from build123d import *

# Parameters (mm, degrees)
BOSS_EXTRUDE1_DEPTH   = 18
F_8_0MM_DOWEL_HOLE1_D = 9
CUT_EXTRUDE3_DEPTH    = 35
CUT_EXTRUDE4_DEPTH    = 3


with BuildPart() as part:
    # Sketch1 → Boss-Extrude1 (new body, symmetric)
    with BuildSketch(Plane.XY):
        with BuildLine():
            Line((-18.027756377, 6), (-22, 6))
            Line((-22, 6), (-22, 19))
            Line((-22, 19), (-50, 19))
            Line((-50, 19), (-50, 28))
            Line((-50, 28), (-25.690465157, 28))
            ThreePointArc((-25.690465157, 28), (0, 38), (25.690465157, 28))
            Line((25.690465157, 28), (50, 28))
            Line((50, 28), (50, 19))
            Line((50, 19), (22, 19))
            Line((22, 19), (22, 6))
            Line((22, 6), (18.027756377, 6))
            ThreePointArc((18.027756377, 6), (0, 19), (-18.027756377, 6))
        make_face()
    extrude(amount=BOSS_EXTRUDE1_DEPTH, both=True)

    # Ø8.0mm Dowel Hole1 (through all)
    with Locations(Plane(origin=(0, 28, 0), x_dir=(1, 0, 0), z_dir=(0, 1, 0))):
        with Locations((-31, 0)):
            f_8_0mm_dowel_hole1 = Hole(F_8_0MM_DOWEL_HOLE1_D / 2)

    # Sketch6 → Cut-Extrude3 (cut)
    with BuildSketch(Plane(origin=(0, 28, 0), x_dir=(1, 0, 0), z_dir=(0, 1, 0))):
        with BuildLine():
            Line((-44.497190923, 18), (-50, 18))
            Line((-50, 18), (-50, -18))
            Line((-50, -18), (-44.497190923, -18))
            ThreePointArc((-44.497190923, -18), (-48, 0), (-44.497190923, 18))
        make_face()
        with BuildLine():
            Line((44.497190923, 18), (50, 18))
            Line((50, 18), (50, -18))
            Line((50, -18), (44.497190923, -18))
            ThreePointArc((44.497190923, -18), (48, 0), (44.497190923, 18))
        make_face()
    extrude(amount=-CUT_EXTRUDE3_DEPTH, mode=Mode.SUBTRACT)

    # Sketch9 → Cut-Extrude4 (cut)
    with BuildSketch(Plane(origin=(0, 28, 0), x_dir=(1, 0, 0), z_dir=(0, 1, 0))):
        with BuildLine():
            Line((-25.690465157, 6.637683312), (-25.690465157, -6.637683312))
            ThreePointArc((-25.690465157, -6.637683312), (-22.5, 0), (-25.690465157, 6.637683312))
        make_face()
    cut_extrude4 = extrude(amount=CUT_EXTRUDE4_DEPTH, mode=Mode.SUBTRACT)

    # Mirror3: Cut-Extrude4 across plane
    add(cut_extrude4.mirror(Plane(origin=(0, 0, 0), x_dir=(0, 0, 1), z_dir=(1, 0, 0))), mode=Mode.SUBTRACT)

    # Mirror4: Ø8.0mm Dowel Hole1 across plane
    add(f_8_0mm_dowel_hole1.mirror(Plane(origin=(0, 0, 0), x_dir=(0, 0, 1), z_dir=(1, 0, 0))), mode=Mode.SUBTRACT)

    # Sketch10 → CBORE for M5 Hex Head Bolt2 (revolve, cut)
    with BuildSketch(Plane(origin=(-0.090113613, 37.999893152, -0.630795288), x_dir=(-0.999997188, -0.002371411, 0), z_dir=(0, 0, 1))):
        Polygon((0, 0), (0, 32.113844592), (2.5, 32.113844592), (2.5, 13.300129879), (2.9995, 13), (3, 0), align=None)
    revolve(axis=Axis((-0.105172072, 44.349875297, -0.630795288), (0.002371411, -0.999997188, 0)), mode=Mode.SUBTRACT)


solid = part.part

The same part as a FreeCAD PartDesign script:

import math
import FreeCAD as App
import Part
import Sketcher


def add_polygon(sketch, points):
    """Adds a closed chain of lines whose ends are joined by coincident constraints."""
    first, n = sketch.GeometryCount, len(points)
    for a, b in zip(points, points[1:] + points[:1]):
        sketch.addGeometry(Part.LineSegment(App.Vector(*a, 0), App.Vector(*b, 0)), False)
    for i in range(n):
        sketch.addConstraint(Sketcher.Constraint("Coincident", first + i, 2, first + (i + 1) % n, 1))

doc = App.newDocument("Part")
body = doc.addObject("PartDesign::Body", "Body")

sketch1 = body.newObject("Sketcher::SketchObject", "Sketch")
sketch1.AttachmentSupport = (doc.getObject("XY_Plane"), [""])
sketch1.MapMode = "FlatFace"
sketch1.addGeometry([
    Part.LineSegment(App.Vector(-22, 6, 0), App.Vector(-18.027756, 6, 0)),
    Part.ArcOfCircle(Part.Circle(App.Vector(0, 0, 0), App.Vector(0, 0, 1), 19), math.radians(18.40848), math.radians(161.59152)),
    Part.LineSegment(App.Vector(18.027756, 6, 0), App.Vector(22, 6, 0)),
    Part.LineSegment(App.Vector(22, 6, 0), App.Vector(22, 19, 0)),
    Part.LineSegment(App.Vector(22, 19, 0), App.Vector(50, 19, 0)),
    Part.LineSegment(App.Vector(50, 19, 0), App.Vector(50, 28, 0)),
    Part.LineSegment(App.Vector(50, 28, 0), App.Vector(25.690465, 28, 0)),
    Part.ArcOfCircle(Part.Circle(App.Vector(0, 0, 0), App.Vector(0, 0, 1), 38), math.radians(47.463102), math.radians(132.536898)),
    Part.LineSegment(App.Vector(-25.690465, 28, 0), App.Vector(-50, 28, 0)),
    Part.LineSegment(App.Vector(-50, 28, 0), App.Vector(-50, 19, 0)),
    Part.LineSegment(App.Vector(-50, 19, 0), App.Vector(-22, 19, 0)),
    Part.LineSegment(App.Vector(-22, 19, 0), App.Vector(-22, 6, 0)),
], False)
sketch1.addConstraint([
    Sketcher.Constraint("Coincident", 0, 2, 1, 2),
    Sketcher.Constraint("Coincident", 1, 1, 2, 1),
    Sketcher.Constraint("Coincident", 2, 2, 3, 1),
    Sketcher.Constraint("Coincident", 3, 2, 4, 1),
    Sketcher.Constraint("Coincident", 4, 2, 5, 1),
    Sketcher.Constraint("Coincident", 5, 2, 6, 1),
    Sketcher.Constraint("Coincident", 6, 2, 7, 1),
    Sketcher.Constraint("Coincident", 7, 2, 8, 1),
    Sketcher.Constraint("Coincident", 8, 2, 9, 1),
    Sketcher.Constraint("Coincident", 9, 2, 10, 1),
    Sketcher.Constraint("Coincident", 10, 2, 11, 1),
    Sketcher.Constraint("Coincident", 11, 2, 0, 1),
    Sketcher.Constraint("Horizontal", 0),
    Sketcher.Constraint("Horizontal", 2),
    Sketcher.Constraint("Vertical", 3),
    Sketcher.Constraint("Horizontal", 4),
    Sketcher.Constraint("Vertical", 5),
    Sketcher.Constraint("Horizontal", 6),
    Sketcher.Constraint("Horizontal", 8),
    Sketcher.Constraint("Vertical", 9),
    Sketcher.Constraint("Horizontal", 10),
    Sketcher.Constraint("Vertical", 11),
    Sketcher.Constraint("Coincident", 1, 3, -1, 1),
    Sketcher.Constraint("Coincident", 7, 3, -1, 1),
    Sketcher.Constraint("Symmetric", 5, 2, 8, 2, -2),
    Sketcher.Constraint("Symmetric", 3, 2, 10, 2, -2),
    Sketcher.Constraint("Horizontal", 0, 2, 1, 1),
    Sketcher.Constraint("Radius", 1, 19.0),
    Sketcher.Constraint("Radius", 7, 38.0),
    Sketcher.Constraint("DistanceX", 4, 1, 4, 2, 28.0),
    Sketcher.Constraint("DistanceY", 3, 1, 3, 2, 13.0),
    Sketcher.Constraint("DistanceY", 5, 1, 5, 2, 9.0),
    Sketcher.Constraint("DistanceY", -1, 1, 0, 2, 6.0),
    Sketcher.Constraint("DistanceX", -1, 1, 2, 2, 22.0),
])
pad1 = body.newObject("PartDesign::Pad", "Pad")
pad1.Profile = sketch1
pad1.Length = 36
pad1.Midplane = True

sketch2 = body.newObject("Sketcher::SketchObject", "Sketch001")
sketch2.AttachmentSupport = (doc.getObject("XZ_Plane"), [""])
sketch2.MapMode = "FlatFace"
sketch2.AttachmentOffset = App.Placement(App.Vector(0, 0, -28), App.Rotation())
sketch2.addGeometry(Part.Circle(App.Vector(-31, 0, 0), App.Vector(0, 0, 1), 4.5), False)
sketch2.addConstraint([
    Sketcher.Constraint("PointOnObject", 0, 3, -1),
    Sketcher.Constraint("Diameter", 0, 9.0),
    Sketcher.Constraint("DistanceX", 0, 3, -1, 1, 31.0),
])
doc.recompute()
hole = body.newObject("PartDesign::Hole", "Hole")
hole.Profile = sketch2
hole.ThreadType = "None"
hole.Diameter = 9
hole.DepthType = "ThroughAll"
hole.Reversed = True

sketch3 = body.newObject("Sketcher::SketchObject", "Sketch002")
sketch3.AttachmentSupport = (doc.getObject("XZ_Plane"), [""])
sketch3.MapMode = "FlatFace"
sketch3.AttachmentOffset = App.Placement(App.Vector(0, 0, -28), App.Rotation())
sketch3.addGeometry([
    Part.LineSegment(App.Vector(-44.497191, -18, 0), App.Vector(-50, -18, 0)),
    Part.LineSegment(App.Vector(-50, -18, 0), App.Vector(-50, 18, 0)),
    Part.LineSegment(App.Vector(-50, 18, 0), App.Vector(-44.497191, 18, 0)),
    Part.ArcOfCircle(Part.Circle(App.Vector(0, 0, 0), App.Vector(0, 0, 1), 48), math.radians(157.975687), math.radians(202.024313)),
    Part.LineSegment(App.Vector(50, -18, 0), App.Vector(44.497191, -18, 0)),
    Part.ArcOfCircle(Part.Circle(App.Vector(0, 0, 0), App.Vector(0, 0, 1), 48), math.radians(-22.024313), math.radians(22.024313)),
    Part.LineSegment(App.Vector(44.497191, 18, 0), App.Vector(50, 18, 0)),
    Part.LineSegment(App.Vector(50, 18, 0), App.Vector(50, -18, 0)),
], False)
sketch3.addConstraint([
    Sketcher.Constraint("Coincident", 0, 2, 1, 1),
    Sketcher.Constraint("Coincident", 1, 2, 2, 1),
    Sketcher.Constraint("Coincident", 2, 2, 3, 1),
    Sketcher.Constraint("Coincident", 3, 2, 0, 1),
    Sketcher.Constraint("Coincident", 4, 2, 5, 1),
    Sketcher.Constraint("Coincident", 5, 2, 6, 1),
    Sketcher.Constraint("Coincident", 6, 2, 7, 1),
    Sketcher.Constraint("Coincident", 7, 2, 4, 1),
    Sketcher.Constraint("Horizontal", 0),
    Sketcher.Constraint("Vertical", 1),
    Sketcher.Constraint("Horizontal", 2),
    Sketcher.Constraint("Horizontal", 4),
    Sketcher.Constraint("Horizontal", 6),
    Sketcher.Constraint("Vertical", 7),
    Sketcher.Constraint("Coincident", 3, 3, -1, 1),
    Sketcher.Constraint("Coincident", 5, 3, -1, 1),
    Sketcher.Constraint("Equal", 3, 5),
    Sketcher.Constraint("Symmetric", 0, 2, 6, 2, -1, 1),
    Sketcher.Constraint("Horizontal", 3, 2, 4, 2),
    Sketcher.Constraint("Horizontal", 2, 2, 5, 2),
    Sketcher.Constraint("Radius", 3, 48.0),
    Sketcher.Constraint("DistanceY", 1, 1, 1, 2, 36.0),
    Sketcher.Constraint("DistanceX", 0, 2, -1, 1, 50.0),
])
pocket1 = body.newObject("PartDesign::Pocket", "Pocket")
pocket1.Profile = sketch3
pocket1.Length = 35
pocket1.Reversed = True

sketch4 = body.newObject("Sketcher::SketchObject", "Sketch003")
sketch4.AttachmentSupport = (doc.getObject("XZ_Plane"), [""])
sketch4.MapMode = "FlatFace"
sketch4.AttachmentOffset = App.Placement(App.Vector(0, 0, -28), App.Rotation())
sketch4.addGeometry([
    Part.LineSegment(App.Vector(-25.690465, -6.637683, 0), App.Vector(-25.690465, 6.637683, 0)),
    Part.ArcOfCircle(Part.Circle(App.Vector(-31, 0, 0), App.Vector(0, 0, 1), 8.5), math.radians(-51.343412), math.radians(51.343412)),
], False)
sketch4.addConstraint([
    Sketcher.Constraint("Coincident", 0, 1, 1, 1),
    Sketcher.Constraint("Coincident", 1, 2, 0, 2),
    Sketcher.Constraint("Vertical", 0),
    Sketcher.Constraint("PointOnObject", 1, 3, -1),
    Sketcher.Constraint("Radius", 1, 8.5),
    Sketcher.Constraint("DistanceX", 1, 3, -1, 1, 31.0),
    Sketcher.Constraint("DistanceY", 0, 1, 0, 2, 13.275367),
])
pocket2 = body.newObject("PartDesign::Pocket", "Pocket001")
pocket2.Profile = sketch4
pocket2.Length = 3
doc.recompute()

mirrored = body.newObject("PartDesign::Mirrored", "Mirrored")
mirrored.Originals = [pocket2]
mirrored.MirrorPlane = (doc.getObject("YZ_Plane"), [""])
body.Tip = mirrored
doc.recompute()

mirrored2 = body.newObject("PartDesign::Mirrored", "Mirrored001")
mirrored2.Originals = [hole]
mirrored2.MirrorPlane = (doc.getObject("YZ_Plane"), [""])
body.Tip = mirrored2

sketch5 = body.newObject("Sketcher::SketchObject", "Sketch004")
sketch5.AttachmentSupport = (doc.getObject("XY_Plane"), [""])
sketch5.MapMode = "FlatFace"
sketch5.AttachmentOffset = App.Placement(App.Vector(0, 0, -0.630795), App.Rotation())
add_polygon(sketch5, [(-0.013958, 5.886139), (-0.090114, 37.999893), (-3.090105, 37.992779), (-3.058777, 24.992817), (-2.558567, 24.693872), (-2.513951, 5.88021)])
sketch5.addGeometry(Part.LineSegment(App.Vector(-0.090114, 37.999893, 0), App.Vector(-0.013958, 5.886139, 0)), True)
sketch5.addConstraint([
    Sketcher.Constraint("Coincident", 6, 1, 0, 2),
    Sketcher.Constraint("Coincident", 6, 2, 5, 2),
    Sketcher.Constraint("Perpendicular", 0, 1),
    Sketcher.Constraint("Perpendicular", 1, 4),
    Sketcher.Constraint("Perpendicular", 4, 5),
    Sketcher.Constraint("Distance", 1, 3.0),
    Sketcher.Constraint("Distance", 2, 13.0),
    Sketcher.Constraint("Distance", 5, 2.5),
    Sketcher.Constraint("DistanceY", -1, 1, 1, 2, 37.992779),
    Sketcher.Constraint("DistanceX", 4, 2, -1, 1, 2.513951),
    Sketcher.Constraint("DistanceY", -1, 1, 4, 2, 5.88021),
    Sketcher.Constraint("DistanceY", -1, 1, 5, 2, 5.886139),
    Sketcher.Constraint("DistanceX", 1, 2, 2, 2, 0.031328),
    Sketcher.Constraint("DistanceY", 3, 2, 0, 2, 13.306021),
])
groove = body.newObject("PartDesign::Groove", "Groove")
groove.Profile = sketch5
groove.ReferenceAxis = (sketch5, ["Axis0"])
groove.Angle = 360

doc.recompute()
